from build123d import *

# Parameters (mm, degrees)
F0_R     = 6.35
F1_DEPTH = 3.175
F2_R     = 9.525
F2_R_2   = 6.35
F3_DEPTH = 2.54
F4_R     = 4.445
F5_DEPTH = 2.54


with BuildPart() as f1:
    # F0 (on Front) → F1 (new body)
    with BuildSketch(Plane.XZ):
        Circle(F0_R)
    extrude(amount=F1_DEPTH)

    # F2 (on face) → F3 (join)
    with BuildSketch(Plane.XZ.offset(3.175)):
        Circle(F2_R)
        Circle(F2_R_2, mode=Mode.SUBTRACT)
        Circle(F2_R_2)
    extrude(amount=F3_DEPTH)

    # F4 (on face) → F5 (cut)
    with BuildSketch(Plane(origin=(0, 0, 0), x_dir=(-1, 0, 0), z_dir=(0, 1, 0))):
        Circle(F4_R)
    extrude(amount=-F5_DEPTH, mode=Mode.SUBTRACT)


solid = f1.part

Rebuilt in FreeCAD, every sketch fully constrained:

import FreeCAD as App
import Part
import Sketcher
Q = App.Units.Quantity

doc = App.newDocument("Part")
params = doc.addObject("Spreadsheet::Sheet", "Params")
for row, (alias, value) in enumerate([
    ("sketch1_diameter", "0.5 in"),
    ("pad1_length", "0.125 in"),
    ("sketch2_diameter", "0.75 in"),
    ("pad2_length", "0.1 in"),
    ("sketch3_diameter", "0.35 in"),
    ("pocket1_length", "0.1 in"),
], start=1):
    params.set(f"A{row}", alias)
    params.set(f"B{row}", "=" + value)
    params.setAlias(f"B{row}", alias)

body = doc.addObject("PartDesign::Body", "Body")

# Sketch on XZ plane
sketch1 = body.newObject("Sketcher::SketchObject", "Sketch")
sketch1.AttachmentSupport = (doc.getObject("XZ_Plane"), [""])
sketch1.MapMode = "FlatFace"
sketch1.addGeometry(Part.Circle(App.Vector(0, 0, 0), App.Vector(0, 0, 1), 6.35), False)
sketch1.addConstraint([
    Sketcher.Constraint("Coincident", 0, 3, -1, 1),
    Sketcher.Constraint("Diameter", 0, Q("0.5 in")),
])
sketch1.setExpression("Constraints[1]", "Params.sketch1_diameter")
pad1 = body.newObject("PartDesign::Pad", "Pad")
pad1.Profile = sketch1
pad1.setExpression("Length", "Params.pad1_length")

# Sketch on XZ plane
sketch2 = body.newObject("Sketcher::SketchObject", "Sketch001")
sketch2.AttachmentSupport = (doc.getObject("XZ_Plane"), [""])
sketch2.MapMode = "FlatFace"
sketch2.AttachmentOffset = App.Placement(App.Vector(0, 0, 0.125 * 25.4), App.Rotation())
sketch2.addGeometry(Part.Circle(App.Vector(0, 0, 0), App.Vector(0, 0, 1), 9.525), False)
sketch2.addConstraint([
    Sketcher.Constraint("Coincident", 0, 3, -1, 1),
    Sketcher.Constraint("Diameter", 0, Q("0.75 in")),
])
sketch2.setExpression("Constraints[1]", "Params.sketch2_diameter")
pad2 = body.newObject("PartDesign::Pad", "Pad001")
pad2.Profile = sketch2
pad2.setExpression("Length", "Params.pad2_length")

# Sketch on XZ plane
sketch3 = body.newObject("Sketcher::SketchObject", "Sketch002")
sketch3.AttachmentSupport = (doc.getObject("XZ_Plane"), [""])
sketch3.MapMode = "FlatFace"
sketch3.addGeometry(Part.Circle(App.Vector(0, 0, 0), App.Vector(0, 0, 1), 4.445), False)
sketch3.addConstraint([
    Sketcher.Constraint("Coincident", 0, 3, -1, 1),
    Sketcher.Constraint("Diameter", 0, Q("0.35 in")),
])
sketch3.setExpression("Constraints[1]", "Params.sketch3_diameter")
pocket1 = body.newObject("PartDesign::Pocket", "Pocket")
pocket1.Profile = sketch3
pocket1.setExpression("Length", "Params.pocket1_length")
pocket1.Reversed = True

doc.recompute()
